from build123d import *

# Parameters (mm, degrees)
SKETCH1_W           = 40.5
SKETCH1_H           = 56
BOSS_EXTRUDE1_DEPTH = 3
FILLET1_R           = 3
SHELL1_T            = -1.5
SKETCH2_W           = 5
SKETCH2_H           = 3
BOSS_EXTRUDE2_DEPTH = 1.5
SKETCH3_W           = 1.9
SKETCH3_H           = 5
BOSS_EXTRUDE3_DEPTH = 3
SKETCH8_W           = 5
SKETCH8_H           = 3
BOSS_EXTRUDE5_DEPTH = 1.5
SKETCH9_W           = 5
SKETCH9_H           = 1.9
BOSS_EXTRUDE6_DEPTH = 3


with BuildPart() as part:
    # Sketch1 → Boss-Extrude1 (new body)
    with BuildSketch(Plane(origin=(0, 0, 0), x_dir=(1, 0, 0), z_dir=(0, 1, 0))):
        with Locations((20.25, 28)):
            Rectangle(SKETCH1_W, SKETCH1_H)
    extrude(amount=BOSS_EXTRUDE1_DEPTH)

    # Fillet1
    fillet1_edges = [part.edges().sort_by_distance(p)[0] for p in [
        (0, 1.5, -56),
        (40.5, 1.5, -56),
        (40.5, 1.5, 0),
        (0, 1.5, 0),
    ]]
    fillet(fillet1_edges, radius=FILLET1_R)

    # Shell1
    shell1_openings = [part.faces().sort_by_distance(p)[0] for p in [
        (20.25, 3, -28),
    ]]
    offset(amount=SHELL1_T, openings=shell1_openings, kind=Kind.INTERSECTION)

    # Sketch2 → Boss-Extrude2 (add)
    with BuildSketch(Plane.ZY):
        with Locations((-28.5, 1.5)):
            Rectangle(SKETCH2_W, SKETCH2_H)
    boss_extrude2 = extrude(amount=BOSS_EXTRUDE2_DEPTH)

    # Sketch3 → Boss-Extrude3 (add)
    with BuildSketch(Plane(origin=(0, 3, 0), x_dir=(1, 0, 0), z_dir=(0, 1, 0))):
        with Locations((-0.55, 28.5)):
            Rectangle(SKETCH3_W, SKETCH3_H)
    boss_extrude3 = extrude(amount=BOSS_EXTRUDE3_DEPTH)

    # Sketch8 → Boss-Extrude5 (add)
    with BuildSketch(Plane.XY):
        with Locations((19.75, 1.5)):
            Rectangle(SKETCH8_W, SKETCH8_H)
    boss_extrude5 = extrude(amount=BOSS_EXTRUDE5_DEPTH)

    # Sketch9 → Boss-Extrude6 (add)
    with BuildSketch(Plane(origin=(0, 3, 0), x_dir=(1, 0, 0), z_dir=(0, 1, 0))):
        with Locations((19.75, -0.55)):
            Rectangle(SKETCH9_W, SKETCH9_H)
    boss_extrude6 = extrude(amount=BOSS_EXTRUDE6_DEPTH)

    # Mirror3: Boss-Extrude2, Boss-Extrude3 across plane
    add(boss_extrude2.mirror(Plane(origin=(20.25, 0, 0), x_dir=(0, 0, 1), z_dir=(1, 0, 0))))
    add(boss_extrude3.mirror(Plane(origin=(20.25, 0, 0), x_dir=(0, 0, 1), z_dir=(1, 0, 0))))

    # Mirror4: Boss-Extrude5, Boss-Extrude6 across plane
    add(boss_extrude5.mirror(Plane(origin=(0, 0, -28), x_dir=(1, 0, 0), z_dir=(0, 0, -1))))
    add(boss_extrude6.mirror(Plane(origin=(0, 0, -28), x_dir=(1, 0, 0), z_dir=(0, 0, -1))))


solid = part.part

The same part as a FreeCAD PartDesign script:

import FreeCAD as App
import Part
import Sketcher

V = App.Vector


def edges_at(feature, points):
    """Names of the edges that pass closest to the given points."""
    edges = feature.Shape.Edges
    near = lambda p: min(range(len(edges)), key=lambda i: edges[i].distToShape(Part.Vertex(*p))[0])
    return sorted({f"Edge{near(p) + 1}" for p in points})


def faces_at(feature, points):
    """Names of the faces that lie closest to the given points."""
    faces = feature.Shape.Faces
    near = lambda p: min(range(len(faces)), key=lambda i: faces[i].distToShape(Part.Vertex(*p))[0])
    return sorted({f"Face{near(p) + 1}" for p in points})

doc = App.newDocument("Part")
body = doc.addObject("PartDesign::Body", "Body")

# Sketch on XZ plane
sketch1 = doc.addObject("Sketcher::SketchObject", "Sketch")
body.addObject(sketch1)
sketch1.AttachmentSupport = (doc.XZ_Plane, [""])
sketch1.MapMode = "FlatFace"
sketch1.addGeometry([
    Part.LineSegment(V(0, -56, 0), V(0, 0, 0)),
    Part.LineSegment(V(0, 0, 0), V(40.5, 0, 0)),
    Part.LineSegment(V(40.5, 0, 0), V(40.5, -56, 0)),
    Part.LineSegment(V(40.5, -56, 0), V(0, -56, 0)),
], False)
sketch1.addConstraint([
    Sketcher.Constraint("Coincident", 0, 2, 1, 1),
    Sketcher.Constraint("Coincident", 1, 2, 2, 1),
    Sketcher.Constraint("Coincident", 2, 2, 3, 1),
    Sketcher.Constraint("Coincident", 3, 2, 0, 1),
    Sketcher.Constraint("Vertical", 0),
    Sketcher.Constraint("Horizontal", 1),
    Sketcher.Constraint("Vertical", 2),
    Sketcher.Constraint("Horizontal", 3),
    Sketcher.Constraint("Coincident", 0, 2, -1, 1),
    Sketcher.Constraint("DistanceY", 0, 1, 0, 2, 56.0),
    Sketcher.Constraint("DistanceX", 1, 1, 1, 2, 40.5),
])
pad1 = doc.addObject("PartDesign::Pad", "Pad")
body.addObject(pad1)
pad1.Profile = sketch1
pad1.Length = 3
pad1.Reversed = True
doc.recompute()

fillet = doc.addObject("PartDesign::Fillet", "Fillet")
body.addObject(fillet)
fillet.Base = (pad1, edges_at(pad1, [
    (0, 1.5, -56),
    (40.5, 1.5, -56),
    (40.5, 1.5, 0),
    (0, 1.5, 0),
]))
fillet.Radius = 3
doc.recompute()

thickness = doc.addObject("PartDesign::Thickness", "Thickness")
body.addObject(thickness)
thickness.Base = (fillet, faces_at(fillet, [(20.25, 3, -28)]))
thickness.Value = 1.5
thickness.Reversed = True
thickness.Join = "Intersection"

# Sketch on YZ plane
sketch2 = doc.addObject("Sketcher::SketchObject", "Sketch001")
body.addObject(sketch2)
sketch2.AttachmentSupport = (doc.YZ_Plane, [""])
sketch2.MapMode = "FlatFace"
sketch2.addGeometry([
    Part.LineSegment(V(3, -31, 0), V(0, -31, 0)),
    Part.LineSegment(V(0, -31, 0), V(0, -26, 0)),
    Part.LineSegment(V(0, -26, 0), V(3, -26, 0)),
    Part.LineSegment(V(3, -26, 0), V(3, -31, 0)),
], False)
sketch2.addConstraint([
    Sketcher.Constraint("Coincident", 0, 2, 1, 1),
    Sketcher.Constraint("Coincident", 1, 2, 2, 1),
    Sketcher.Constraint("Coincident", 2, 2, 3, 1),
    Sketcher.Constraint("Coincident", 3, 2, 0, 1),
    Sketcher.Constraint("Horizontal", 0),
    Sketcher.Constraint("Vertical", 1),
    Sketcher.Constraint("Horizontal", 2),
    Sketcher.Constraint("Vertical", 3),
    Sketcher.Constraint("PointOnObject", 0, 2, -2),
    Sketcher.Constraint("DistanceX", 0, 2, 0, 1, 3.0),
    Sketcher.Constraint("DistanceY", 1, 1, 1, 2, 5.0),
    Sketcher.Constraint("DistanceY", 0, 2, -1, 1, 31.0),
])
pad2 = doc.addObject("PartDesign::Pad", "Pad001")
body.addObject(pad2)
pad2.Profile = sketch2
pad2.Length = 1.5
pad2.Reversed = True

# Sketch on XZ plane
sketch3 = doc.addObject("Sketcher::SketchObject", "Sketch002")
body.addObject(sketch3)
sketch3.AttachmentSupport = (doc.XZ_Plane, [""])
sketch3.MapMode = "FlatFace"
sketch3.AttachmentOffset = App.Placement(V(0, 0, -3), App.Rotation())
sketch3.addGeometry([
    Part.LineSegment(V(-1.5, -31, 0), V(-1.5, -26, 0)),
    Part.LineSegment(V(-1.5, -26, 0), V(0.4, -26, 0)),
    Part.LineSegment(V(0.4, -26, 0), V(0.4, -31, 0)),
    Part.LineSegment(V(0.4, -31, 0), V(-1.5, -31, 0)),
], False)
sketch3.addConstraint([
    Sketcher.Constraint("Coincident", 0, 2, 1, 1),
    Sketcher.Constraint("Coincident", 1, 2, 2, 1),
    Sketcher.Constraint("Coincident", 2, 2, 3, 1),
    Sketcher.Constraint("Coincident", 3, 2, 0, 1),
    Sketcher.Constraint("Vertical", 0),
    Sketcher.Constraint("Horizontal", 1),
    Sketcher.Constraint("Vertical", 2),
    Sketcher.Constraint("Horizontal", 3),
    Sketcher.Constraint("DistanceY", 0, 1, 0, 2, 5.0),
    Sketcher.Constraint("DistanceX", 1, 1, 1, 2, 1.9),
    Sketcher.Constraint("DistanceY", 0, 2, -1, 1, 26.0),
    Sketcher.Constraint("DistanceX", 0, 2, -1, 1, 1.5),
])
pad3 = doc.addObject("PartDesign::Pad", "Pad002")
body.addObject(pad3)
pad3.Profile = sketch3
pad3.Length = 3
pad3.Reversed = True

# Sketch on XY plane
sketch4 = doc.addObject("Sketcher::SketchObject", "Sketch003")
body.addObject(sketch4)
sketch4.AttachmentSupport = (doc.XY_Plane, [""])
sketch4.MapMode = "FlatFace"
sketch4.addGeometry([
    Part.LineSegment(V(17.25, 3, 0), V(17.25, 0, 0)),
    Part.LineSegment(V(17.25, 0, 0), V(22.25, 0, 0)),
    Part.LineSegment(V(22.25, 0, 0), V(22.25, 3, 0)),
    Part.LineSegment(V(22.25, 3, 0), V(17.25, 3, 0)),
], False)
sketch4.addConstraint([
    Sketcher.Constraint("Coincident", 0, 2, 1, 1),
    Sketcher.Constraint("Coincident", 1, 2, 2, 1),
    Sketcher.Constraint("Coincident", 2, 2, 3, 1),
    Sketcher.Constraint("Coincident", 3, 2, 0, 1),
    Sketcher.Constraint("Vertical", 0),
    Sketcher.Constraint("Horizontal", 1),
    Sketcher.Constraint("Vertical", 2),
    Sketcher.Constraint("Horizontal", 3),
    Sketcher.Constraint("PointOnObject", 0, 2, -1),
    Sketcher.Constraint("DistanceX", 1, 1, 1, 2, 5.0),
    Sketcher.Constraint("DistanceY", 0, 2, 0, 1, 3.0),
    Sketcher.Constraint("DistanceX", -1, 1, 0, 2, 17.25),
])
pad4 = doc.addObject("PartDesign::Pad", "Pad003")
body.addObject(pad4)
pad4.Profile = sketch4
pad4.Length = 1.5

# Sketch on XZ plane
sketch5 = doc.addObject("Sketcher::SketchObject", "Sketch004")
body.addObject(sketch5)
sketch5.AttachmentSupport = (doc.XZ_Plane, [""])
sketch5.MapMode = "FlatFace"
sketch5.AttachmentOffset = App.Placement(V(0, 0, -3), App.Rotation())
sketch5.addGeometry([
    Part.LineSegment(V(17.25, -0.4, 0), V(17.25, 1.5, 0)),
    Part.LineSegment(V(17.25, 1.5, 0), V(22.25, 1.5, 0)),
    Part.LineSegment(V(22.25, 1.5, 0), V(22.25, -0.4, 0)),
    Part.LineSegment(V(22.25, -0.4, 0), V(17.25, -0.4, 0)),
], False)
sketch5.addConstraint([
    Sketcher.Constraint("Coincident", 0, 2, 1, 1),
    Sketcher.Constraint("Coincident", 1, 2, 2, 1),
    Sketcher.Constraint("Coincident", 2, 2, 3, 1),
    Sketcher.Constraint("Coincident", 3, 2, 0, 1),
    Sketcher.Constraint("Vertical", 0),
    Sketcher.Constraint("Horizontal", 1),
    Sketcher.Constraint("Vertical", 2),
    Sketcher.Constraint("Horizontal", 3),
    Sketcher.Constraint("DistanceX", 1, 1, 1, 2, 5.0),
    Sketcher.Constraint("DistanceY", 0, 1, 0, 2, 1.9),
    Sketcher.Constraint("DistanceY", -1, 1, 0, 2, 1.5),
    Sketcher.Constraint("DistanceX", -1, 1, 0, 2, 17.25),
])
pad5 = doc.addObject("PartDesign::Pad", "Pad004")
body.addObject(pad5)
pad5.Profile = sketch5
pad5.Length = 3
pad5.Reversed = True
doc.recompute()

datumplane = doc.addObject("PartDesign::Plane", "DatumPlane")
body.addObject(datumplane)
datumplane.AttachmentSupport = (doc.YZ_Plane, [""])
datumplane.MapMode = "FlatFace"
datumplane.AttachmentOffset = App.Placement(V(0, 0, 20.25), App.Rotation())
mirrored = doc.addObject("PartDesign::Mirrored", "Mirrored")
body.addObject(mirrored)
mirrored.Originals = [pad2, pad3]
mirrored.MirrorPlane = (datumplane, [""])
body.Tip = mirrored
doc.recompute()

datumplane2 = doc.addObject("PartDesign::Plane", "DatumPlane001")
body.addObject(datumplane2)
datumplane2.AttachmentSupport = (doc.XY_Plane, [""])
datumplane2.MapMode = "FlatFace"
datumplane2.AttachmentOffset = App.Placement(V(0, 0, -28), App.Rotation())
mirrored2 = doc.addObject("PartDesign::Mirrored", "Mirrored001")
body.addObject(mirrored2)
mirrored2.Originals = [pad4, pad5]
mirrored2.MirrorPlane = (datumplane2, [""])
body.Tip = mirrored2

doc.recompute()
